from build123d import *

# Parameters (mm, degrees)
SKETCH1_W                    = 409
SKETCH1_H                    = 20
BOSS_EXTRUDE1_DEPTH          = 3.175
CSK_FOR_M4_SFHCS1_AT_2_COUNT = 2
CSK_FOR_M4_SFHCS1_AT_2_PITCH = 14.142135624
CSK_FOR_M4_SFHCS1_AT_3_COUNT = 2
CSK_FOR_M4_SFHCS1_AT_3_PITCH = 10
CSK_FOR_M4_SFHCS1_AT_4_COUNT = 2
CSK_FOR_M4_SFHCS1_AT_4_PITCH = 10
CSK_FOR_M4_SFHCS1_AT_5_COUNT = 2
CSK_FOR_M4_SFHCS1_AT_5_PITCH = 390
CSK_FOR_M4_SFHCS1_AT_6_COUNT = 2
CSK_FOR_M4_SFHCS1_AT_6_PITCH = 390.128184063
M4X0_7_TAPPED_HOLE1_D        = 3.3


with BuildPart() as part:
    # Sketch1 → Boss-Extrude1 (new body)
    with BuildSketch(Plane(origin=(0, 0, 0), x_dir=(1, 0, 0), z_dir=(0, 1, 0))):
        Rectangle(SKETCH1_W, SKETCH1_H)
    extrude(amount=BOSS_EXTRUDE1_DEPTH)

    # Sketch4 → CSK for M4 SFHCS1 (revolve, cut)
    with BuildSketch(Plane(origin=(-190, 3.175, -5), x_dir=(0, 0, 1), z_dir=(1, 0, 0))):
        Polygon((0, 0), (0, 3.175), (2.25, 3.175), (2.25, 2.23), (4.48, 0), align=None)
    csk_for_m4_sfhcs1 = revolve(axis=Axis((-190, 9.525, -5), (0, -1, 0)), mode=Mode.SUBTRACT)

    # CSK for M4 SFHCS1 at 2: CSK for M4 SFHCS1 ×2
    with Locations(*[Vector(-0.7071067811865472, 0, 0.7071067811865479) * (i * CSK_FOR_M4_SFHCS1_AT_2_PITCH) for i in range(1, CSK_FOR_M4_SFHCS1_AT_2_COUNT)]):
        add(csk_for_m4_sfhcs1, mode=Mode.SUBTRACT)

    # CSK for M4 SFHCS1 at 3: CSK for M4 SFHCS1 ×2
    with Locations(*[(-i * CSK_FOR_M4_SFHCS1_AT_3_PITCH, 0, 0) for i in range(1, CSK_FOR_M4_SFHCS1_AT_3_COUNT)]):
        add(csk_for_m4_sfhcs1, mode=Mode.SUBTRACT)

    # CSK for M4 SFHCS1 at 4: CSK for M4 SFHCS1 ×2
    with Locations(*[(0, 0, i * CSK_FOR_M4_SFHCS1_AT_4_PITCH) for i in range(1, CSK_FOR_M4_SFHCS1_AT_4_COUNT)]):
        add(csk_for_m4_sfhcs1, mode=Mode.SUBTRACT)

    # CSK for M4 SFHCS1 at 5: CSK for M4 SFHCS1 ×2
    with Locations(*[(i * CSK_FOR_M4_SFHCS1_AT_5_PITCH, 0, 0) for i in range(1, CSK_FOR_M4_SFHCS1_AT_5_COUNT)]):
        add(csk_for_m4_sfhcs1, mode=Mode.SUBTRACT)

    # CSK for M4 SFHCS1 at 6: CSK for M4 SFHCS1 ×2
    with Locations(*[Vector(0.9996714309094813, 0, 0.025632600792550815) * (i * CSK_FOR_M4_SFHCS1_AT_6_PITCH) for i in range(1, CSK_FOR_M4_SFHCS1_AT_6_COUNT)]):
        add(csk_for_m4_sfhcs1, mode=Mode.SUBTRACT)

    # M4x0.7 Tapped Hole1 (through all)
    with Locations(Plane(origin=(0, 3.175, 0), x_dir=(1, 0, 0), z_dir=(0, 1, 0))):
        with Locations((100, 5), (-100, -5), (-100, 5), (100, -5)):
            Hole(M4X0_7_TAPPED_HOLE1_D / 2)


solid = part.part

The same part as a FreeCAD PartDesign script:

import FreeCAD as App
import Part
import Sketcher
from FreeCAD import Vector
Q = App.Units.Quantity

doc = App.newDocument("Part")
params = doc.addObject("Spreadsheet::Sheet", "Params")
for row, (alias, value) in enumerate([
    ("sketch1_width", "409 mm"),
    ("sketch1_height", "20 mm"),
    ("pad1_length", "3.175 mm"),
    ("sketch2_height", "4.48 mm"),
    ("sketch2_height2", "2.25 mm"),
    ("groove_angle", "360 deg"),
    ("linearpattern_pitch", "14.142136 mm"),
    ("linearpattern2_pitch", "10 mm"),
    ("linearpattern3_pitch", "10 mm"),
    ("linearpattern4_pitch", "390 mm"),
    ("linearpattern5_pitch", "390.128184 mm"),
    ("sketch3_diameter", "3.3 mm"),
    ("hole_diameter", "3.3 mm"),
], start=1):
    params.set(f"A{row}", alias)
    params.set(f"B{row}", "=" + value)
    params.setAlias(f"B{row}", alias)

body = doc.addObject("PartDesign::Body", "Body")

# Sketch on XZ plane
sketch1 = doc.addObject("Sketcher::SketchObject", "Sketch")
body.addObject(sketch1)
sketch1.AttachmentSupport = (doc.XZ_Plane, [""])
sketch1.MapMode = "FlatFace"
sketch1.addGeometry(Part.LineSegment(Vector(-204, -10, 0), Vector(-204, 10, 0)), False)
sketch1.addGeometry(Part.LineSegment(Vector(-204, 10, 0), Vector(204, 10, 0)), False)
sketch1.addGeometry(Part.LineSegment(Vector(204, 10, 0), Vector(204, -10, 0)), False)
sketch1.addGeometry(Part.LineSegment(Vector(204, -10, 0), Vector(-204, -10, 0)), False)
sketch1.addConstraint(Sketcher.Constraint("Coincident", 0, 2, 1, 1))
sketch1.addConstraint(Sketcher.Constraint("Coincident", 1, 2, 2, 1))
sketch1.addConstraint(Sketcher.Constraint("Coincident", 2, 2, 3, 1))
sketch1.addConstraint(Sketcher.Constraint("Coincident", 3, 2, 0, 1))
sketch1.addConstraint(Sketcher.Constraint("Vertical", 0))
sketch1.addConstraint(Sketcher.Constraint("Horizontal", 1))
sketch1.addConstraint(Sketcher.Constraint("Vertical", 2))
sketch1.addConstraint(Sketcher.Constraint("Horizontal", 3))
sketch1.addConstraint(Sketcher.Constraint("Symmetric", 0, 2, 2, 2, -1, 1))
sketch1.addConstraint(Sketcher.Constraint("DistanceX", 1, 1, 1, 2, Q("409 mm")))
sketch1.addConstraint(Sketcher.Constraint("DistanceY", 0, 1, 0, 2, Q("20 mm")))
sketch1.setExpression("Constraints[9]", "Params.sketch1_width")
sketch1.setExpression("Constraints[10]", "Params.sketch1_height")
pad1 = doc.addObject("PartDesign::Pad", "Pad")
body.addObject(pad1)
pad1.Profile = sketch1
pad1.setExpression("Length", "Params.pad1_length")
pad1.Reversed = True

# Sketch on YZ plane
sketch2 = doc.addObject("Sketcher::SketchObject", "Sketch001")
body.addObject(sketch2)
sketch2.AttachmentSupport = (doc.YZ_Plane, [""])
sketch2.MapMode = "FlatFace"
sketch2.AttachmentOffset = App.Placement(Vector(0, 0, -190), App.Rotation())
sketch2.addGeometry(Part.LineSegment(Vector(0, -5, 0), Vector(3.2, -5, 0)), False)
sketch2.addGeometry(Part.LineSegment(Vector(3.2, -5, 0), Vector(3.2, -0.5, 0)), False)
sketch2.addGeometry(Part.LineSegment(Vector(3.2, -0.5, 0), Vector(0.9, -2.8, 0)), False)
sketch2.addGeometry(Part.LineSegment(Vector(0.9, -2.8, 0), Vector(0, -2.8, 0)), False)
sketch2.addGeometry(Part.LineSegment(Vector(0, -2.8, 0), Vector(0, -5, 0)), False)
sketch2.addGeometry(Part.LineSegment(Vector(3.2, -5, 0), Vector(0, -5, 0)), True)  # axis
sketch2.addConstraint(Sketcher.Constraint("Coincident", 0, 2, 1, 1))
sketch2.addConstraint(Sketcher.Constraint("Coincident", 1, 2, 2, 1))
sketch2.addConstraint(Sketcher.Constraint("Coincident", 2, 2, 3, 1))
sketch2.addConstraint(Sketcher.Constraint("Coincident", 3, 2, 4, 1))
sketch2.addConstraint(Sketcher.Constraint("Coincident", 4, 2, 0, 1))
sketch2.addConstraint(Sketcher.Constraint("Horizontal", 0))
sketch2.addConstraint(Sketcher.Constraint("Vertical", 1))
sketch2.addConstraint(Sketcher.Constraint("Horizontal", 3))
sketch2.addConstraint(Sketcher.Constraint("Vertical", 4))
sketch2.addConstraint(Sketcher.Constraint("Horizontal", 5))
sketch2.addConstraint(Sketcher.Constraint("Coincident", 5, 1, 0, 2))
sketch2.addConstraint(Sketcher.Constraint("PointOnObject", 3, 2, -2))
sketch2.addConstraint(Sketcher.Constraint("PointOnObject", 5, 2, -2))
sketch2.addConstraint(Sketcher.Constraint("Angle", 2, Q("-135 deg")))
sketch2.addConstraint(Sketcher.Constraint("DistanceY", 0, 2, -1, 1, Q("5 mm")))
sketch2.addConstraint(Sketcher.Constraint("DistanceY", 1, 1, 1, 2, Q("4.48 mm")))
sketch2.addConstraint(Sketcher.Constraint("DistanceY", 4, 2, 4, 1, Q("2.25 mm")))
sketch2.addConstraint(Sketcher.Constraint("DistanceX", 0, 1, 0, 2, Q("3.175 mm")))
sketch2.setExpression("Constraints[15]", "Params.sketch2_height")
sketch2.setExpression("Constraints[16]", "Params.sketch2_height2")
groove = doc.addObject("PartDesign::Groove", "Groove")
body.addObject(groove)
groove.Profile = sketch2
groove.ReferenceAxis = (sketch2, ["Axis0"])
groove.setExpression("Angle", "Params.groove_angle")
doc.recompute()

datumline = doc.addObject("PartDesign::Line", "DatumLine")
body.addObject(datumline)
datumline.Placement = App.Placement(Vector(0, 0, 0), App.Rotation(Vector(0, 0, 1), Vector(-0.707106781, 0, 0.707106781)))
linearpattern = doc.addObject("PartDesign::LinearPattern", "LinearPattern")
body.addObject(linearpattern)
linearpattern.Originals = [groove]
linearpattern.Direction = (datumline, [""])
linearpattern.Mode = "offset"
linearpattern.setExpression("Offset", "Params.linearpattern_pitch")
linearpattern.Occurrences = 2
body.Tip = linearpattern
doc.recompute()

linearpattern2 = doc.addObject("PartDesign::LinearPattern", "LinearPattern001")
body.addObject(linearpattern2)
linearpattern2.Originals = [groove]
linearpattern2.Direction = (doc.X_Axis, [""])
linearpattern2.Mode = "offset"
linearpattern2.setExpression("Offset", "Params.linearpattern2_pitch")
linearpattern2.Occurrences = 2
linearpattern2.Reversed = True
body.Tip = linearpattern2
doc.recompute()

linearpattern3 = doc.addObject("PartDesign::LinearPattern", "LinearPattern002")
body.addObject(linearpattern3)
linearpattern3.Originals = [groove]
linearpattern3.Direction = (doc.Z_Axis, [""])
linearpattern3.Mode = "offset"
linearpattern3.setExpression("Offset", "Params.linearpattern3_pitch")
linearpattern3.Occurrences = 2
body.Tip = linearpattern3
doc.recompute()

linearpattern4 = doc.addObject("PartDesign::LinearPattern", "LinearPattern003")
body.addObject(linearpattern4)
linearpattern4.Originals = [groove]
linearpattern4.Direction = (doc.X_Axis, [""])
linearpattern4.Mode = "offset"
linearpattern4.setExpression("Offset", "Params.linearpattern4_pitch")
linearpattern4.Occurrences = 2
body.Tip = linearpattern4
doc.recompute()

datumline2 = doc.addObject("PartDesign::Line", "DatumLine001")
body.addObject(datumline2)
datumline2.Placement = App.Placement(Vector(0, 0, 0), App.Rotation(Vector(0, 0, 1), Vector(0.999671431, 0, 0.025632601)))
linearpattern5 = doc.addObject("PartDesign::LinearPattern", "LinearPattern004")
body.addObject(linearpattern5)
linearpattern5.Originals = [groove]
linearpattern5.Direction = (datumline2, [""])
linearpattern5.Mode = "offset"
linearpattern5.setExpression("Offset", "Params.linearpattern5_pitch")
linearpattern5.Occurrences = 2
body.Tip = linearpattern5

# Sketch on XZ plane
sketch3 = doc.addObject("Sketcher::SketchObject", "Sketch002")
body.addObject(sketch3)
sketch3.AttachmentSupport = (doc.XZ_Plane, [""])
sketch3.MapMode = "FlatFace"
sketch3.AttachmentOffset = App.Placement(Vector(0, 0, -3.175), App.Rotation())
sketch3.addGeometry(Part.Circle(Vector(100, -5, 0), Vector(0, 0, 1), 1.6), False)
sketch3.addGeometry(Part.Circle(Vector(-100, 5, 0), Vector(0, 0, 1), 1.6), False)
sketch3.addGeometry(Part.Circle(Vector(-100, -5, 0), Vector(0, 0, 1), 1.6), False)
sketch3.addGeometry(Part.Circle(Vector(100, 5, 0), Vector(0, 0, 1), 1.6), False)
sketch3.addConstraint(Sketcher.Constraint("Equal", 0, 1))
sketch3.addConstraint(Sketcher.Constraint("Equal", 1, 2))
sketch3.addConstraint(Sketcher.Constraint("Equal", 2, 3))
sketch3.addConstraint(Sketcher.Constraint("Symmetric", 0, 3, 1, 3, -1, 1))
sketch3.addConstraint(Sketcher.Constraint("Symmetric", 2, 3, 3, 3, -1, 1))
sketch3.addConstraint(Sketcher.Constraint("Symmetric", 0, 3, 2, 3, -2))
sketch3.addConstraint(Sketcher.Constraint("Diameter", 0, Q("3.3 mm")))
sketch3.addConstraint(Sketcher.Constraint("DistanceX", -1, 1, 0, 3, Q("100 mm")))
sketch3.addConstraint(Sketcher.Constraint("DistanceY", 0, 3, -1, 1, Q("5 mm")))
sketch3.setExpression("Constraints[6]", "Params.sketch3_diameter")
doc.recompute()
hole = doc.addObject("PartDesign::Hole", "Hole")
body.addObject(hole)
hole.Profile = sketch3
hole.ThreadType = "None"
hole.setExpression("Diameter", "Params.hole_diameter")
hole.DepthType = "ThroughAll"
hole.Reversed = True

doc.recompute()
